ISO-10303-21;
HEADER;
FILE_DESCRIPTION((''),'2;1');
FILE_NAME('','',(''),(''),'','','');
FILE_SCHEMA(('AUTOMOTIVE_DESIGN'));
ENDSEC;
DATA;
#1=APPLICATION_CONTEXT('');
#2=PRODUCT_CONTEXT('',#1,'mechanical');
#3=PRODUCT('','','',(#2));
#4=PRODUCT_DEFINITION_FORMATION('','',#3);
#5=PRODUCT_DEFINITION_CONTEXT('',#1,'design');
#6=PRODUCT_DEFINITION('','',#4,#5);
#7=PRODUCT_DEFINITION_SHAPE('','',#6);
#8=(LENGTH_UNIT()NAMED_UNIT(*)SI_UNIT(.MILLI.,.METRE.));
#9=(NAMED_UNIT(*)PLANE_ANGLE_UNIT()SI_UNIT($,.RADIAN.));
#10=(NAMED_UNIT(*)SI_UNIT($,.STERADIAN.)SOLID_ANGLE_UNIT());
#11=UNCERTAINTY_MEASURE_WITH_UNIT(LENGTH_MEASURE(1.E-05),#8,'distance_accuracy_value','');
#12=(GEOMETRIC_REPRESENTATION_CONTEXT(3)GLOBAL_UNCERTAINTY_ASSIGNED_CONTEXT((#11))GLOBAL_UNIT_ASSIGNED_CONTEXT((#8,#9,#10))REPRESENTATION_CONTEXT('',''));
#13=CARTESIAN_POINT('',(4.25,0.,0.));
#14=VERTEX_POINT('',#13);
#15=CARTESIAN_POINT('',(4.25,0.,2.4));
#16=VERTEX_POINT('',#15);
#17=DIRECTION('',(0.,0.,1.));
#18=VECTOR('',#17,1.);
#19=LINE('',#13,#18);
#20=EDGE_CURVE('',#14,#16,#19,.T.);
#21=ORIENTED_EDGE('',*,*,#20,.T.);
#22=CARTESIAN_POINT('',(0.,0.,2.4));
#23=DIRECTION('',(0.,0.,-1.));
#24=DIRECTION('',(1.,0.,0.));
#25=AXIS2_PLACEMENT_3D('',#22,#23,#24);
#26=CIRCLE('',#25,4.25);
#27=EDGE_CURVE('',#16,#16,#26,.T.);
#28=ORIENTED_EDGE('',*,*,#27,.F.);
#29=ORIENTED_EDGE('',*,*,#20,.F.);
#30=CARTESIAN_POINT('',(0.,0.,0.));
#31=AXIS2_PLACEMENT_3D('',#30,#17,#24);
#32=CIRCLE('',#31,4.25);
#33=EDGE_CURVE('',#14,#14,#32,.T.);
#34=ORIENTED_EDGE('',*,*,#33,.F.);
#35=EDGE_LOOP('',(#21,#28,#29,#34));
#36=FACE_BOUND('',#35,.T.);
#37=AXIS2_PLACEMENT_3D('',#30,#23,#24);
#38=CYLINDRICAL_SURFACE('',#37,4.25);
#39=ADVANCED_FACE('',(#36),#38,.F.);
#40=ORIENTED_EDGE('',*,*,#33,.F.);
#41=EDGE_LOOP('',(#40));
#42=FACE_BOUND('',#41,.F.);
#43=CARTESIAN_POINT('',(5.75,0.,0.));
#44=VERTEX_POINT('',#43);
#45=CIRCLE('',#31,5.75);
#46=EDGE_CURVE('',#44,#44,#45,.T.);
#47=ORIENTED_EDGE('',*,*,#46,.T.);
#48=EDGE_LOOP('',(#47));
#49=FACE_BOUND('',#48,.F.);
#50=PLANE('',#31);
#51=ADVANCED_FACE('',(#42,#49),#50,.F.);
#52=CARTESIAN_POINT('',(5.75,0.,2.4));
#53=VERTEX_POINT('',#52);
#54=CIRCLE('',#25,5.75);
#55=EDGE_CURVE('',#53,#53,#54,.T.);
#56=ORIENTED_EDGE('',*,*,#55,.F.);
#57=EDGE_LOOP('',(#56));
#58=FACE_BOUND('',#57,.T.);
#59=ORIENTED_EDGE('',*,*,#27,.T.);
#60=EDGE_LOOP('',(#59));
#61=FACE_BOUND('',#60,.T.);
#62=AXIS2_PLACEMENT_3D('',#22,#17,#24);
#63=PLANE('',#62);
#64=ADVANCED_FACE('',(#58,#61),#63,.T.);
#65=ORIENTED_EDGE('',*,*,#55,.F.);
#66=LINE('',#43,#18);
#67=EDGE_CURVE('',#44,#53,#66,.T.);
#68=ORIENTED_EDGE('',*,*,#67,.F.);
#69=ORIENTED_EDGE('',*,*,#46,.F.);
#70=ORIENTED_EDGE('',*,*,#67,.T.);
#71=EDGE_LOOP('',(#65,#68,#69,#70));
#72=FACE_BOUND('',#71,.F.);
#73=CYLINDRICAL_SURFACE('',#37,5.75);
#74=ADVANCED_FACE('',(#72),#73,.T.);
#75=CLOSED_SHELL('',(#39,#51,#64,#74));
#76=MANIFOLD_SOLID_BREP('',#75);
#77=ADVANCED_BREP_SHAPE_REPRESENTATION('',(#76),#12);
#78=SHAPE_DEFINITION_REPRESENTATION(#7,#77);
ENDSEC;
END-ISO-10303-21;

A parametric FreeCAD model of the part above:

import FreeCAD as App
import Part
import Sketcher
Q = App.Units.Quantity

doc = App.newDocument("Part")
params = doc.addObject("Spreadsheet::Sheet", "Params")
for row, (alias, value) in enumerate([
    ("sketch1_diameter", "11.5 mm"),
    ("sketch1_diameter2", "8.5 mm"),
    ("pad1_length", "2.4 mm"),
], start=1):
    params.set(f"A{row}", alias)
    params.set(f"B{row}", "=" + value)
    params.setAlias(f"B{row}", alias)

body = doc.addObject("PartDesign::Body", "Body")

sketch1 = body.newObject("Sketcher::SketchObject", "Sketch")
sketch1.AttachmentSupport = (doc.getObject("XY_Plane"), [""])
sketch1.MapMode = "FlatFace"
sketch1.addGeometry(Part.Circle(App.Vector(0, 0, 0), App.Vector(0, 0, 1), 5.8), False)
sketch1.addGeometry(Part.Circle(App.Vector(0, 0, 0), App.Vector(0, 0, 1), 4.2), False)
sketch1.addConstraint(Sketcher.Constraint("Coincident", 0, 3, -1, 1))
sketch1.addConstraint(Sketcher.Constraint("Coincident", 1, 3, -1, 1))
sketch1.addConstraint(Sketcher.Constraint("Diameter", 0, Q("11.5 mm")))
sketch1.addConstraint(Sketcher.Constraint("Diameter", 1, Q("8.5 mm")))
sketch1.setExpression("Constraints[2]", "Params.sketch1_diameter")
sketch1.setExpression("Constraints[3]", "Params.sketch1_diameter2")
pad1 = body.newObject("PartDesign::Pad", "Pad")
pad1.Profile = sketch1
pad1.setExpression("Length", "Params.pad1_length")

doc.recompute()
